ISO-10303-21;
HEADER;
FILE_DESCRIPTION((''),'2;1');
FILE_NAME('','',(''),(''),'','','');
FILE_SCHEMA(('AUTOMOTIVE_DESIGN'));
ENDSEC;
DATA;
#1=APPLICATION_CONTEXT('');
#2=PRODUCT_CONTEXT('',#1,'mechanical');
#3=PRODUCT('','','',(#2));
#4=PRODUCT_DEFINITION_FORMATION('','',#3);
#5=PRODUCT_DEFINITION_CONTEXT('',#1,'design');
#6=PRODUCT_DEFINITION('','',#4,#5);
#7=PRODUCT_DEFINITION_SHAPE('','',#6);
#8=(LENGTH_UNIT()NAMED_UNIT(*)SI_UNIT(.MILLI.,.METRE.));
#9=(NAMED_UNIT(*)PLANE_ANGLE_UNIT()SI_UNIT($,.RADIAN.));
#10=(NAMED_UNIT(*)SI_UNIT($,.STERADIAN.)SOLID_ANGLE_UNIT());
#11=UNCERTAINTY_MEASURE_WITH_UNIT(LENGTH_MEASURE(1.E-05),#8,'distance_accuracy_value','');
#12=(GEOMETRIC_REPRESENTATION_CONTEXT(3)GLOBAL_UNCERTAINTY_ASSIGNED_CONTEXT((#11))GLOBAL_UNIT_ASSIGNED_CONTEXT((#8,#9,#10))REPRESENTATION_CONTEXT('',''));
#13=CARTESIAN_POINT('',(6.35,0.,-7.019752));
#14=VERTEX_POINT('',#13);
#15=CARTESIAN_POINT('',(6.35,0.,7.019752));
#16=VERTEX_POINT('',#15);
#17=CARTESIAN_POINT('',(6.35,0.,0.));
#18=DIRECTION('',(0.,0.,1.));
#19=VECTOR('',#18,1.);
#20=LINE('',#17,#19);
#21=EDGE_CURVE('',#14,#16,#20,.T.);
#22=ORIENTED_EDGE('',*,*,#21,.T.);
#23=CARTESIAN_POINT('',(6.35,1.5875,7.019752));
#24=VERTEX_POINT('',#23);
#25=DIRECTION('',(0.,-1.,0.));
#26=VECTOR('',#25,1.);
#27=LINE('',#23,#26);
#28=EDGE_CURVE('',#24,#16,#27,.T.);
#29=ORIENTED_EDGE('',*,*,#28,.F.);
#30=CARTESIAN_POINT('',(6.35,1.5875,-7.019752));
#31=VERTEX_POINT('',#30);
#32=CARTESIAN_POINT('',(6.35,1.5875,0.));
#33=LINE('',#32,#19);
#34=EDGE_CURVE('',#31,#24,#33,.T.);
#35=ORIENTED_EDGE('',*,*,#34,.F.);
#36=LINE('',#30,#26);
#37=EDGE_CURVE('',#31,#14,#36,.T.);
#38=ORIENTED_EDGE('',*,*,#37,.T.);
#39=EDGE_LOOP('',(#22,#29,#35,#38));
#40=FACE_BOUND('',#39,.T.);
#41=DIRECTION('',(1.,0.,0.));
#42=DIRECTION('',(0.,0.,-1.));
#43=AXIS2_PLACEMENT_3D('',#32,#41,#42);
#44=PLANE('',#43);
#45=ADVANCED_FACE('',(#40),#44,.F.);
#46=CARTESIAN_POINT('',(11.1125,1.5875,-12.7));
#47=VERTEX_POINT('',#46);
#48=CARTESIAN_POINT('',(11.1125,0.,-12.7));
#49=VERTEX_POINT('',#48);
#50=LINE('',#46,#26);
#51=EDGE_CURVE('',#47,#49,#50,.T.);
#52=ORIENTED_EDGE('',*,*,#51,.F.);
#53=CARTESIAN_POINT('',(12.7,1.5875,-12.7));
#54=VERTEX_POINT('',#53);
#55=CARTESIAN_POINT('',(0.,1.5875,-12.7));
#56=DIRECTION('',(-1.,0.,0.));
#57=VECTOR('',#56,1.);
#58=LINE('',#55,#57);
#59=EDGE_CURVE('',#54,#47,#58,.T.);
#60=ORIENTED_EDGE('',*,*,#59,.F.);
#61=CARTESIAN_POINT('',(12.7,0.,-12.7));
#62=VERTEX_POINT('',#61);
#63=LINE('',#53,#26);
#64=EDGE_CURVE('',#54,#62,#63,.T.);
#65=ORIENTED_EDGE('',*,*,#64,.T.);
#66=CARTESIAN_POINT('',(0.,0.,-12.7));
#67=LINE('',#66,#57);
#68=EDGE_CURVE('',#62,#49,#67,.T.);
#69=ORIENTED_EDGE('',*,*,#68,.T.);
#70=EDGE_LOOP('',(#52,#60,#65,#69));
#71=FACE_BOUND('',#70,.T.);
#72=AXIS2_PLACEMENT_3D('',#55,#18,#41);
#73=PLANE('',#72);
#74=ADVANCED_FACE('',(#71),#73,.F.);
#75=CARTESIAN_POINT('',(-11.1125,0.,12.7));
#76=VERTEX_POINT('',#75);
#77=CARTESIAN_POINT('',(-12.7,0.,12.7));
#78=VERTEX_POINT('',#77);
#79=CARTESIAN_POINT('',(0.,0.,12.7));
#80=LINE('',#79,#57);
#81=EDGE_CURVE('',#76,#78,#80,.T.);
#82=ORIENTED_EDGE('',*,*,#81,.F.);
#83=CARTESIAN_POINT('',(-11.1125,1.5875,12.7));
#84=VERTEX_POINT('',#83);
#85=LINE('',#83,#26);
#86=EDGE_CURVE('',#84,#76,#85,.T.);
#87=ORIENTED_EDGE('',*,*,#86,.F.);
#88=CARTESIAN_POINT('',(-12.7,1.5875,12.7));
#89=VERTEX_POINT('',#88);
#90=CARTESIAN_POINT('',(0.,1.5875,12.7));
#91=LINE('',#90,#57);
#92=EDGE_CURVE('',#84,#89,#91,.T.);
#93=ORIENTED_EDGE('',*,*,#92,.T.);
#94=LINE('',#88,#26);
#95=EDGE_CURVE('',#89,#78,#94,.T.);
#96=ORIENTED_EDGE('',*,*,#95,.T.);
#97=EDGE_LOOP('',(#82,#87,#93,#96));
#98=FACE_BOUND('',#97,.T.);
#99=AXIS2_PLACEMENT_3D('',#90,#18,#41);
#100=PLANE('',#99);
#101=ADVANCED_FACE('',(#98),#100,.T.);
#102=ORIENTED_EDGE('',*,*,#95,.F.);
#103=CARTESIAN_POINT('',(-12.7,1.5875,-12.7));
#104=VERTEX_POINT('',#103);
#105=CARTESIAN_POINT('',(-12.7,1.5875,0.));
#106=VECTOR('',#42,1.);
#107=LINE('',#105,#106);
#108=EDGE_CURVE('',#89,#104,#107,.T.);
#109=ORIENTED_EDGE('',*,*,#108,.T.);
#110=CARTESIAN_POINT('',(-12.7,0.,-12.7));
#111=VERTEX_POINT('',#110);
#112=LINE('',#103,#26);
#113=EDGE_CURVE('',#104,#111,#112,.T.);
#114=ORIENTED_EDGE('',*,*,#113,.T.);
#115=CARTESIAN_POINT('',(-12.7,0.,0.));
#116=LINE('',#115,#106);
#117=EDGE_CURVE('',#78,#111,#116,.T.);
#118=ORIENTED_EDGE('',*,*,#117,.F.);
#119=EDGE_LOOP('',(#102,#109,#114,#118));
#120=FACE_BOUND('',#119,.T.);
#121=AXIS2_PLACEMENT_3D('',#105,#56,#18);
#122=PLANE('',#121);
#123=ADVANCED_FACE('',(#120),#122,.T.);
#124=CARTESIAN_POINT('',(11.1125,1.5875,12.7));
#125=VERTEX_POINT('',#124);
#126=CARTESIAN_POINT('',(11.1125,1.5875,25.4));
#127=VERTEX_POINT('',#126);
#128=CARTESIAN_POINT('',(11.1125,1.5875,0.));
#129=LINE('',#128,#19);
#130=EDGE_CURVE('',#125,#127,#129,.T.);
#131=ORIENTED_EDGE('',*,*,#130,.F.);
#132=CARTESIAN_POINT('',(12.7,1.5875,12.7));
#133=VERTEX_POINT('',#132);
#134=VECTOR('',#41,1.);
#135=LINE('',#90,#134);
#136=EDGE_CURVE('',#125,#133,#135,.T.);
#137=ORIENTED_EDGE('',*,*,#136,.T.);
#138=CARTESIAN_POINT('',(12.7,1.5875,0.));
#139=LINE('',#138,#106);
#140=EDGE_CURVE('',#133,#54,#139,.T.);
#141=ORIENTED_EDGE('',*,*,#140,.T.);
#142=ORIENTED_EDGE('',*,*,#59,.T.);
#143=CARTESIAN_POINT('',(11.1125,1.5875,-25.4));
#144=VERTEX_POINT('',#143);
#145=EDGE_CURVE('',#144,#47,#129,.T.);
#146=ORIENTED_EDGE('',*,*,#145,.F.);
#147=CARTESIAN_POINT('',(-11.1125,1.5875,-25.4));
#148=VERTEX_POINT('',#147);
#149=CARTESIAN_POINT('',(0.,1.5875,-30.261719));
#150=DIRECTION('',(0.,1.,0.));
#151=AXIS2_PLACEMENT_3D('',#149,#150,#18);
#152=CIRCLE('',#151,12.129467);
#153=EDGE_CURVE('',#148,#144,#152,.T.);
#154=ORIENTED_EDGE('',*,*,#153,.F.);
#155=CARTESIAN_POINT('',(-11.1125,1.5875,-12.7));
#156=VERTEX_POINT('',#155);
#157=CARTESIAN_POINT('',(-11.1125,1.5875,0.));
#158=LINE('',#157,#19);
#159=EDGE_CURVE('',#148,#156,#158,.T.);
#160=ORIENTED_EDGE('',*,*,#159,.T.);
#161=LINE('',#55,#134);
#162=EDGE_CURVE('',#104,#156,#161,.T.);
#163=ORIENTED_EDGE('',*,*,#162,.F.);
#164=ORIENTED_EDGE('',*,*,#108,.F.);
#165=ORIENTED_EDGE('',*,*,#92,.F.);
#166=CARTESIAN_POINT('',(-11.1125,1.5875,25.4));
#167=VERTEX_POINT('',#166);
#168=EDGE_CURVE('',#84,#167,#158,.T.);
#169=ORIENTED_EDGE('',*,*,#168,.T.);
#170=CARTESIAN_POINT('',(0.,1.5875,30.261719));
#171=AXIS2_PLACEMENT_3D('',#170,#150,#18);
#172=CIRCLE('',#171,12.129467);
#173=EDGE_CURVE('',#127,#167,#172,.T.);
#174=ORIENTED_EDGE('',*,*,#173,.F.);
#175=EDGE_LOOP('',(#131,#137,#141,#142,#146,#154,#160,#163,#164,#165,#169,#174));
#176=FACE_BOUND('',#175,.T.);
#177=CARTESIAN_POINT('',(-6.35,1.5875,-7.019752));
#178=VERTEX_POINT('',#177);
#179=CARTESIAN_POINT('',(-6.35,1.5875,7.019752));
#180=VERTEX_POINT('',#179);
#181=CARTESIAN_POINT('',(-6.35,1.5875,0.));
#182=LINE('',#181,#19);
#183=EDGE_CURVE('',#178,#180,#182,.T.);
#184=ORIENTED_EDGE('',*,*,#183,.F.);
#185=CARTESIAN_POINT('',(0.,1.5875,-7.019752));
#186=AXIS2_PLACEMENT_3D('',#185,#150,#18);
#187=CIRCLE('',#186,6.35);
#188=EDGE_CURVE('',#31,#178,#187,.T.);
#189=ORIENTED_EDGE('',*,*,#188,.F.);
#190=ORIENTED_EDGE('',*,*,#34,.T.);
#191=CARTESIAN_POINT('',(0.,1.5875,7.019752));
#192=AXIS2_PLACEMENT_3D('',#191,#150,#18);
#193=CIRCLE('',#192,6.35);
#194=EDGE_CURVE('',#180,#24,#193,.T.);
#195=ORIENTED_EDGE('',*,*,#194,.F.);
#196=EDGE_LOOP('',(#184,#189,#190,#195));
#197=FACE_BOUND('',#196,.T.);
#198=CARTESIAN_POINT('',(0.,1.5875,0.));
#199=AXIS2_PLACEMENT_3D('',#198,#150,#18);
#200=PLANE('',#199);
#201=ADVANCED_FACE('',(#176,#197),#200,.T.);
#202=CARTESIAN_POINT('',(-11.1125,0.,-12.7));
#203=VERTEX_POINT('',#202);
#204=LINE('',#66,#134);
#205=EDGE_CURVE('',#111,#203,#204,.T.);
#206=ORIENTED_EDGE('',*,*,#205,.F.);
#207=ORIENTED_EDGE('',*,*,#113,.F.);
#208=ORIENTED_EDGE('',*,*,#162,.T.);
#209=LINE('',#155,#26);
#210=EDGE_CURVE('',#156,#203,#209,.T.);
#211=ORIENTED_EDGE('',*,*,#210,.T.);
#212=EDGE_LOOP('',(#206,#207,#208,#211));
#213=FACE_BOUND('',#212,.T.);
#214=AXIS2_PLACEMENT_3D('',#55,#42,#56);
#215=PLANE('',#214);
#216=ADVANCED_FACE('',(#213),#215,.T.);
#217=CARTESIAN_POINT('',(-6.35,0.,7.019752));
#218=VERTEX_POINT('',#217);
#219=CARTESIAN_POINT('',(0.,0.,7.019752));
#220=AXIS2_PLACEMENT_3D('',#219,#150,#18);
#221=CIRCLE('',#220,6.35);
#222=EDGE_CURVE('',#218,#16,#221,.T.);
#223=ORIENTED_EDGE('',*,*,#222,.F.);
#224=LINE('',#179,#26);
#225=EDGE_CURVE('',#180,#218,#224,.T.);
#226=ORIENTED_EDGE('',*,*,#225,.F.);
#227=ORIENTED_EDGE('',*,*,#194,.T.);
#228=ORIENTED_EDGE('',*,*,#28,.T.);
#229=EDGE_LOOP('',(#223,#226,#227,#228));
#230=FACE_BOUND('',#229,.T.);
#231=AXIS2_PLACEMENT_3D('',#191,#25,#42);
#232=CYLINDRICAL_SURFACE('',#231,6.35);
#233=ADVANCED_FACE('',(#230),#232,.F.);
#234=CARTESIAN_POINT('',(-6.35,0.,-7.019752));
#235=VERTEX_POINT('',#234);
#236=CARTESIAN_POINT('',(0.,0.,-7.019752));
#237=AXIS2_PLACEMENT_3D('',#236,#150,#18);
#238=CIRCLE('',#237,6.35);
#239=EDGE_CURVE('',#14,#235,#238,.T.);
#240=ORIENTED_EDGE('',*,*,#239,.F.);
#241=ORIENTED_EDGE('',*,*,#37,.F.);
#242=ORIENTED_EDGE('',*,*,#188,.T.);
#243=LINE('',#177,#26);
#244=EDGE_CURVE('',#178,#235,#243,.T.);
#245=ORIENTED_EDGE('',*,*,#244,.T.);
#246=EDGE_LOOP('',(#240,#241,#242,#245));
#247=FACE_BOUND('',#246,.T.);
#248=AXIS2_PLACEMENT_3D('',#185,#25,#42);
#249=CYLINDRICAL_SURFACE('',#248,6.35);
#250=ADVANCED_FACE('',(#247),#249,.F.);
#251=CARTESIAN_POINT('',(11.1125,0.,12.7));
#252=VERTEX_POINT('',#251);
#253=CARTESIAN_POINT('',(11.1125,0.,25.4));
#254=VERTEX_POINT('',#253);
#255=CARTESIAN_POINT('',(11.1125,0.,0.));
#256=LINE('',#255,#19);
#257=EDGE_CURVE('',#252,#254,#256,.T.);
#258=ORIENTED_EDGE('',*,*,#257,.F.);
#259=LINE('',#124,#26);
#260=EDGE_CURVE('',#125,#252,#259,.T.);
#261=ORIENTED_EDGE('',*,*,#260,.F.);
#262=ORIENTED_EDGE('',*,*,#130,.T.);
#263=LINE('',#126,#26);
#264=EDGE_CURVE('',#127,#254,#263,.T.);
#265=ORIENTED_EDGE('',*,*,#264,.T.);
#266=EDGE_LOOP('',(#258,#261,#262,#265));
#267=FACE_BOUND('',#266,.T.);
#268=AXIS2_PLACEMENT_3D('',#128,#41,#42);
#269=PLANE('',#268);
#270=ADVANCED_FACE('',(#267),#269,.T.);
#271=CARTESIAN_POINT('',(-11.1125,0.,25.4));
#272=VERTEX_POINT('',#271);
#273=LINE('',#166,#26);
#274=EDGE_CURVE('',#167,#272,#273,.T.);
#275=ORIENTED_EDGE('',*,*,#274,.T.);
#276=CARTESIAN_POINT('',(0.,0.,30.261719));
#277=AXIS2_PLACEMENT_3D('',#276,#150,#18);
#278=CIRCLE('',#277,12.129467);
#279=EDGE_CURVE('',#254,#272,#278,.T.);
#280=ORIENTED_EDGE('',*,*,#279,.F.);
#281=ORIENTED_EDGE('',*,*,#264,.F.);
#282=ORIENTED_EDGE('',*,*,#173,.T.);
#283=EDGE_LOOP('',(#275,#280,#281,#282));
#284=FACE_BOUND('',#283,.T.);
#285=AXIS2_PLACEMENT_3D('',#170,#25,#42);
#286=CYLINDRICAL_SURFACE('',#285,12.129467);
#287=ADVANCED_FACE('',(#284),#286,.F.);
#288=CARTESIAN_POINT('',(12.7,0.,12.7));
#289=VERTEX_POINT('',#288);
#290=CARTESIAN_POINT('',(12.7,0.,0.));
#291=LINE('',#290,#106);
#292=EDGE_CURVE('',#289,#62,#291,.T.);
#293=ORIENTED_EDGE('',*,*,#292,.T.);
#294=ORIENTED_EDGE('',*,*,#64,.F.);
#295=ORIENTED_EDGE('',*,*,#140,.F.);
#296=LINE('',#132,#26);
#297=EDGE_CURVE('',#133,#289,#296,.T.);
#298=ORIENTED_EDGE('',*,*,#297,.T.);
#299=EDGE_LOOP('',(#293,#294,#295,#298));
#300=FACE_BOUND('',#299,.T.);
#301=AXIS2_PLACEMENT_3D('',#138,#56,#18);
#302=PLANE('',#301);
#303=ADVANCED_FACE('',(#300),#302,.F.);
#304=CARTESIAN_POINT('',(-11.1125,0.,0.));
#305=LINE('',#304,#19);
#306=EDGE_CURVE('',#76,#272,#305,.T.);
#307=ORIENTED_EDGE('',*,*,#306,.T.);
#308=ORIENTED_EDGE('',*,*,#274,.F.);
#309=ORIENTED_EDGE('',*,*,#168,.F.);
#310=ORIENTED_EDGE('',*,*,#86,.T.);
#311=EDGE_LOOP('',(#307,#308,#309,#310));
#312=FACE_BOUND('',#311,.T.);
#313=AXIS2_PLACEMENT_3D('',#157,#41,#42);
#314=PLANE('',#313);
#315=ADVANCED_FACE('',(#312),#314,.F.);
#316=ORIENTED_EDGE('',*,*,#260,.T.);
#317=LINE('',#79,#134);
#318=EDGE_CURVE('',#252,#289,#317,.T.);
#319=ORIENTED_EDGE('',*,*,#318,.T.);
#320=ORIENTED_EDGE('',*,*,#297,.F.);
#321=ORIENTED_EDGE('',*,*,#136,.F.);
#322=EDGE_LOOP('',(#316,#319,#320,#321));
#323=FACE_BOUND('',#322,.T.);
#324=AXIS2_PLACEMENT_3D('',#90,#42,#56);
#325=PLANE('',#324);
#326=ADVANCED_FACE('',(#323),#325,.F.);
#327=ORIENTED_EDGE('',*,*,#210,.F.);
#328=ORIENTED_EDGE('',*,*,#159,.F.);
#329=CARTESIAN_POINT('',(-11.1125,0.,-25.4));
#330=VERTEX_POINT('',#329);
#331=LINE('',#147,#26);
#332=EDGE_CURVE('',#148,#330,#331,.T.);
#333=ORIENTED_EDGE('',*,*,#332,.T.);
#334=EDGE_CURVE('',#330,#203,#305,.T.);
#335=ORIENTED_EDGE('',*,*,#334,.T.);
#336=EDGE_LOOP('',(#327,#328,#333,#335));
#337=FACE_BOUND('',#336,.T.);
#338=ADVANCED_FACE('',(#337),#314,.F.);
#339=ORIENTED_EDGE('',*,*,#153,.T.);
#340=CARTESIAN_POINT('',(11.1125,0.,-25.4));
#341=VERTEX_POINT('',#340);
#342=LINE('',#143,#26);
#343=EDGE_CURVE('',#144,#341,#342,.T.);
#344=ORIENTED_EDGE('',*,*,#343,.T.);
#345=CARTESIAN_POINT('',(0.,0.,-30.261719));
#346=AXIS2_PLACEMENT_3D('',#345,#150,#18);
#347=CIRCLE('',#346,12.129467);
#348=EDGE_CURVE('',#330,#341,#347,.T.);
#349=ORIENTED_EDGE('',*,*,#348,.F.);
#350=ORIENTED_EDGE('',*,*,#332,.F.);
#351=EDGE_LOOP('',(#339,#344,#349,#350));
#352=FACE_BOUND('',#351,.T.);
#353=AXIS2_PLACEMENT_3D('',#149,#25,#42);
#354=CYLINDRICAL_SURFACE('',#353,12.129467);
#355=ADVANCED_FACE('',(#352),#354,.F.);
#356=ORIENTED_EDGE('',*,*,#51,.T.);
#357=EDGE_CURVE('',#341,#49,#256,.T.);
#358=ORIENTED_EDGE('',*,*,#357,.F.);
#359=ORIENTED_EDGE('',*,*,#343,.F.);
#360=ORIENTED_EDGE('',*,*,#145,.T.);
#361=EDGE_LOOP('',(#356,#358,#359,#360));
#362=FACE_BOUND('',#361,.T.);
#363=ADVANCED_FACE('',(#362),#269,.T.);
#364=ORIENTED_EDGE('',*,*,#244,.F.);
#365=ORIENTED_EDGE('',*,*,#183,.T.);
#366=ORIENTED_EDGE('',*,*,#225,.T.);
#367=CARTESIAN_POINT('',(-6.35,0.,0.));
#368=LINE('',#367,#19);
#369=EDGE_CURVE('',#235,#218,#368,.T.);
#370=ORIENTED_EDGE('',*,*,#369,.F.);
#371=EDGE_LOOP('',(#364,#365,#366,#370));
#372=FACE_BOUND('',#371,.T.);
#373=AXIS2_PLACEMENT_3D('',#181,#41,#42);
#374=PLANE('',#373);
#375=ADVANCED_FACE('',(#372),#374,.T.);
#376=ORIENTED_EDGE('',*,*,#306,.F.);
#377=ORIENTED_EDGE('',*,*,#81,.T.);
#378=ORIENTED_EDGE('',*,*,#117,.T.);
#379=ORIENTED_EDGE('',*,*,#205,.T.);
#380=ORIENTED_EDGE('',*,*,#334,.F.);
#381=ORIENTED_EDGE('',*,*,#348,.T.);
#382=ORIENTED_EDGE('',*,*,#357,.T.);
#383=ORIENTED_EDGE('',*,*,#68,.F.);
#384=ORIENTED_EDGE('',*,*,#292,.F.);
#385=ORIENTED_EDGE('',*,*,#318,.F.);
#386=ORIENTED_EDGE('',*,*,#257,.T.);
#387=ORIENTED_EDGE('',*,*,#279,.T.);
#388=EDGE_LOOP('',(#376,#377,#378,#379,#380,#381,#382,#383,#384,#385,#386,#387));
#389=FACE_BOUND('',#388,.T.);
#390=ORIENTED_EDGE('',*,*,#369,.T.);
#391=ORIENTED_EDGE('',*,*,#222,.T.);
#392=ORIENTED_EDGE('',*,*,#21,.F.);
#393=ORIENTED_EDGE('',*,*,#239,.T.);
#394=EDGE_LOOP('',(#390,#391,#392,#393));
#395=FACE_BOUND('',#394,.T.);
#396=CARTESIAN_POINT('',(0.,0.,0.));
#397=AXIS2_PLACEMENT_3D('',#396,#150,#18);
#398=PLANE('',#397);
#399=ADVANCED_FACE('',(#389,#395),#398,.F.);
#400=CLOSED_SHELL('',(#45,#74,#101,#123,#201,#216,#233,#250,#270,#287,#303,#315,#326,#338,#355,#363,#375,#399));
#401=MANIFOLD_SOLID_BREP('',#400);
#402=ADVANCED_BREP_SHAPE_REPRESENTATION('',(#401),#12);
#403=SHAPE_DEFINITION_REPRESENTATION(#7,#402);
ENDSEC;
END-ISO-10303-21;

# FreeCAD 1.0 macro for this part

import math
import FreeCAD as App
import Part
import Sketcher
from FreeCAD import Vector
Q = App.Units.Quantity

doc = App.newDocument("Part")
body = doc.addObject("PartDesign::Body", "Body")

# Sketch on XZ plane
sketch1 = body.newObject("Sketcher::SketchObject", "Sketch")
sketch1.AttachmentSupport = (doc.getObject("XZ_Plane"), [""])
sketch1.MapMode = "FlatFace"
sketch1.addGeometry([
    Part.LineSegment(Vector(11.1, 25.4, 0), Vector(11.1, 12.7, 0)),  # 0
    Part.LineSegment(Vector(11.1, 12.7, 0), Vector(12.7, 12.7, 0)),  # 1
    Part.LineSegment(Vector(12.7, 12.7, 0), Vector(12.7, -12.7, 0)),  # 2
    Part.LineSegment(Vector(12.7, -12.7, 0), Vector(11.1, -12.7, 0)),  # 3
    Part.LineSegment(Vector(11.1, -12.7, 0), Vector(11.1, -25.4, 0)),  # 4
    Part.ArcOfCircle(Part.Circle(Vector(0, -30.3, 0), Vector(0, 0, 1), 12.1), math.radians(24), math.radians(156)),  # 5
    Part.LineSegment(Vector(-11.1, -25.4, 0), Vector(-11.1, -12.7, 0)),  # 6
    Part.LineSegment(Vector(-11.1, -12.7, 0), Vector(-12.7, -12.7, 0)),  # 7
    Part.LineSegment(Vector(-12.7, -12.7, 0), Vector(-12.7, 12.7, 0)),  # 8
    Part.LineSegment(Vector(-12.7, 12.7, 0), Vector(-11.1, 12.7, 0)),  # 9
    Part.LineSegment(Vector(-11.1, 12.7, 0), Vector(-11.1, 25.4, 0)),  # 10
    Part.ArcOfCircle(Part.Circle(Vector(0, 30.3, 0), Vector(0, 0, 1), 12.1), math.radians(-156), math.radians(-24)),  # 11
    Part.LineSegment(Vector(-6.3, 7, 0), Vector(-6.3, -7, 0)),  # 12
    Part.ArcOfCircle(Part.Circle(Vector(0, -7, 0), Vector(0, 0, 1), 6.3), math.radians(180), math.radians(360)),  # 13
    Part.LineSegment(Vector(6.3, -7, 0), Vector(6.3, 7, 0)),  # 14
    Part.ArcOfCircle(Part.Circle(Vector(0, 7, 0), Vector(0, 0, 1), 6.3), math.radians(0), math.radians(180)),  # 15
], False)
sketch1.addConstraint([
    Sketcher.Constraint("Coincident", 0, 2, 1, 1),
    Sketcher.Constraint("Coincident", 1, 2, 2, 1),
    Sketcher.Constraint("Coincident", 2, 2, 3, 1),
    Sketcher.Constraint("Coincident", 3, 2, 4, 1),
    Sketcher.Constraint("Coincident", 4, 2, 5, 1),
    Sketcher.Constraint("Coincident", 5, 2, 6, 1),
    Sketcher.Constraint("Coincident", 6, 2, 7, 1),
    Sketcher.Constraint("Coincident", 7, 2, 8, 1),
    Sketcher.Constraint("Coincident", 8, 2, 9, 1),
    Sketcher.Constraint("Coincident", 9, 2, 10, 1),
    Sketcher.Constraint("Coincident", 10, 2, 11, 1),
    Sketcher.Constraint("Coincident", 11, 2, 0, 1),
    Sketcher.Constraint("Tangent", 12, 2, 13, 1),
    Sketcher.Constraint("Tangent", 13, 2, 14, 1),
    Sketcher.Constraint("Tangent", 14, 2, 15, 1),
    Sketcher.Constraint("Tangent", 15, 2, 12, 1),
    Sketcher.Constraint("Vertical", 0),
    Sketcher.Constraint("Horizontal", 1),
    Sketcher.Constraint("Vertical", 2),
    Sketcher.Constraint("Horizontal", 3),
    Sketcher.Constraint("Vertical", 4),
    Sketcher.Constraint("Vertical", 6),
    Sketcher.Constraint("Horizontal", 7),
    Sketcher.Constraint("Vertical", 8),
    Sketcher.Constraint("Horizontal", 9),
    Sketcher.Constraint("Vertical", 10),
    Sketcher.Constraint("Vertical", 12),
    Sketcher.Constraint("Vertical", 14),
    Sketcher.Constraint("Equal", 5, 11),
    Sketcher.Constraint("Symmetric", 5, 3, 11, 3, -1, 1),
    Sketcher.Constraint("Symmetric", 13, 3, 15, 3, -1, 1),
    Sketcher.Constraint("Symmetric", 0, 2, 6, 2, -1, 1),
    Sketcher.Constraint("Symmetric", 2, 2, 8, 2, -1, 1),
    Sketcher.Constraint("Symmetric", 4, 2, 5, 2, -2),
    Sketcher.Constraint("Symmetric", 0, 2, 9, 2, -2),
    Sketcher.Constraint("DistanceY", 2, 2, 2, 1, Q("1 in")),
    Sketcher.Constraint("Radius", 13, Q("0.25 in")),
    Sketcher.Constraint("DistanceY", 0, 2, 0, 1, Q("0.5 in")),
    Sketcher.Constraint("DistanceX", 8, 2, 1, 2, Q("1 in")),
    Sketcher.Constraint("DistanceX", 1, 1, 1, 2, Q("0.0625 in")),
    Sketcher.Constraint("Radius", 5, 12.129467),
    Sketcher.Constraint("DistanceY", 12, 2, 12, 1, 14.039504),
])
pad1 = body.newObject("PartDesign::Pad", "Pad")
pad1.Profile = sketch1
pad1.Length = Q("0.0625 in")
pad1.Reversed = True

doc.recompute()
